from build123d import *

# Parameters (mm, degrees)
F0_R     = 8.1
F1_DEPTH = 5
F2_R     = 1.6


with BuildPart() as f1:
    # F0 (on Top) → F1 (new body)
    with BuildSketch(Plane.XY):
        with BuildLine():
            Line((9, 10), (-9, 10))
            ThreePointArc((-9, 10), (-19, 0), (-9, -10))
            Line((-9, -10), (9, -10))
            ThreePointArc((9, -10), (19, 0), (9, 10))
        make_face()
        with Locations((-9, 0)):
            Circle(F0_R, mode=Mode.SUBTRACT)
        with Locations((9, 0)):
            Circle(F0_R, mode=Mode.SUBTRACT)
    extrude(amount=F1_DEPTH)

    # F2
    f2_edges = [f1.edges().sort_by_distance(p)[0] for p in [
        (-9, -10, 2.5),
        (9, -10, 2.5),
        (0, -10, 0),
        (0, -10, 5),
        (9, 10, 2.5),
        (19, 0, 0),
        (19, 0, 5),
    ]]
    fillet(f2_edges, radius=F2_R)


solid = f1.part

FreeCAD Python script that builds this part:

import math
import FreeCAD as App
import Part
import Sketcher
from FreeCAD import Vector


def edges_at(feature, points):
    """Names of the edges that pass closest to the given points."""
    edges = feature.Shape.Edges
    near = lambda p: min(range(len(edges)), key=lambda i: edges[i].distToShape(Part.Vertex(*p))[0])
    return sorted({f"Edge{near(p) + 1}" for p in points})

doc = App.newDocument("Part")
params = doc.addObject("Spreadsheet::Sheet", "Params")
for row, (alias, value) in enumerate([
    ("sketch1_radius", "10 mm"),
    ("sketch1_diameter", "16.2 mm"),
    ("sketch1_width", "18 mm"),
    ("pad1_length", "5 mm"),
    ("fillet_radius", "1.6 mm"),
], start=1):
    params.set(f"A{row}", alias)
    params.set(f"B{row}", "=" + value)
    params.setAlias(f"B{row}", alias)

body = doc.addObject("PartDesign::Body", "Body")

# Sketch on XY plane
sketch1 = body.newObject("Sketcher::SketchObject", "Sketch")
sketch1.AttachmentSupport = (doc.getObject("XY_Plane"), [""])
sketch1.MapMode = "FlatFace"
sketch1.addGeometry([
    Part.LineSegment(Vector(9, 10, 0), Vector(-9, 10, 0)),  # 0
    Part.ArcOfCircle(Part.Circle(Vector(-9, 0, 0), Vector(0, 0, 1), 10), math.radians(90), math.radians(270)),  # 1
    Part.LineSegment(Vector(-9, -10, 0), Vector(9, -10, 0)),  # 2
    Part.ArcOfCircle(Part.Circle(Vector(9, 0, 0), Vector(0, 0, 1), 10), math.radians(-90), math.radians(90)),  # 3
    Part.Circle(Vector(-9, 0, 0), Vector(0, 0, 1), 8.1),  # 4
    Part.Circle(Vector(9, 0, 0), Vector(0, 0, 1), 8.1),  # 5
], False)
sketch1.addConstraint([
    Sketcher.Constraint("Tangent", 0, 2, 1, 1),
    Sketcher.Constraint("Tangent", 1, 2, 2, 1),
    Sketcher.Constraint("Tangent", 2, 2, 3, 1),
    Sketcher.Constraint("Tangent", 3, 2, 0, 1),
    Sketcher.Constraint("Horizontal", 0),
    Sketcher.Constraint("Horizontal", 2),
    Sketcher.Constraint("Coincident", 4, 3, 1, 3),
    Sketcher.Constraint("Coincident", 5, 3, 3, 3),
    Sketcher.Constraint("Equal", 4, 5),
    Sketcher.Constraint("Symmetric", 1, 3, 3, 3, -1, 1),
    Sketcher.Constraint("Radius", 1, 10.0),
    Sketcher.Constraint("Diameter", 4, 16.2),
    Sketcher.Constraint("DistanceX", 0, 2, 0, 1, 18.0),
])
sketch1.setExpression("Constraints[10]", "Params.sketch1_radius")
sketch1.setExpression("Constraints[11]", "Params.sketch1_diameter")
sketch1.setExpression("Constraints[12]", "Params.sketch1_width")
pad1 = body.newObject("PartDesign::Pad", "Pad")
pad1.Profile = sketch1
pad1.setExpression("Length", "Params.pad1_length")
doc.recompute()

fillet = body.newObject("PartDesign::Fillet", "Fillet")
fillet.Base = (pad1, edges_at(pad1, [
    (-9, -10, 2.5),
    (9, -10, 2.5),
    (0, -10, 0),
    (0, -10, 5),
    (9, 10, 2.5),
    (19, 0, 0),
    (19, 0, 5),
]))
fillet.setExpression("Radius", "Params.fillet_radius")

doc.recompute()
